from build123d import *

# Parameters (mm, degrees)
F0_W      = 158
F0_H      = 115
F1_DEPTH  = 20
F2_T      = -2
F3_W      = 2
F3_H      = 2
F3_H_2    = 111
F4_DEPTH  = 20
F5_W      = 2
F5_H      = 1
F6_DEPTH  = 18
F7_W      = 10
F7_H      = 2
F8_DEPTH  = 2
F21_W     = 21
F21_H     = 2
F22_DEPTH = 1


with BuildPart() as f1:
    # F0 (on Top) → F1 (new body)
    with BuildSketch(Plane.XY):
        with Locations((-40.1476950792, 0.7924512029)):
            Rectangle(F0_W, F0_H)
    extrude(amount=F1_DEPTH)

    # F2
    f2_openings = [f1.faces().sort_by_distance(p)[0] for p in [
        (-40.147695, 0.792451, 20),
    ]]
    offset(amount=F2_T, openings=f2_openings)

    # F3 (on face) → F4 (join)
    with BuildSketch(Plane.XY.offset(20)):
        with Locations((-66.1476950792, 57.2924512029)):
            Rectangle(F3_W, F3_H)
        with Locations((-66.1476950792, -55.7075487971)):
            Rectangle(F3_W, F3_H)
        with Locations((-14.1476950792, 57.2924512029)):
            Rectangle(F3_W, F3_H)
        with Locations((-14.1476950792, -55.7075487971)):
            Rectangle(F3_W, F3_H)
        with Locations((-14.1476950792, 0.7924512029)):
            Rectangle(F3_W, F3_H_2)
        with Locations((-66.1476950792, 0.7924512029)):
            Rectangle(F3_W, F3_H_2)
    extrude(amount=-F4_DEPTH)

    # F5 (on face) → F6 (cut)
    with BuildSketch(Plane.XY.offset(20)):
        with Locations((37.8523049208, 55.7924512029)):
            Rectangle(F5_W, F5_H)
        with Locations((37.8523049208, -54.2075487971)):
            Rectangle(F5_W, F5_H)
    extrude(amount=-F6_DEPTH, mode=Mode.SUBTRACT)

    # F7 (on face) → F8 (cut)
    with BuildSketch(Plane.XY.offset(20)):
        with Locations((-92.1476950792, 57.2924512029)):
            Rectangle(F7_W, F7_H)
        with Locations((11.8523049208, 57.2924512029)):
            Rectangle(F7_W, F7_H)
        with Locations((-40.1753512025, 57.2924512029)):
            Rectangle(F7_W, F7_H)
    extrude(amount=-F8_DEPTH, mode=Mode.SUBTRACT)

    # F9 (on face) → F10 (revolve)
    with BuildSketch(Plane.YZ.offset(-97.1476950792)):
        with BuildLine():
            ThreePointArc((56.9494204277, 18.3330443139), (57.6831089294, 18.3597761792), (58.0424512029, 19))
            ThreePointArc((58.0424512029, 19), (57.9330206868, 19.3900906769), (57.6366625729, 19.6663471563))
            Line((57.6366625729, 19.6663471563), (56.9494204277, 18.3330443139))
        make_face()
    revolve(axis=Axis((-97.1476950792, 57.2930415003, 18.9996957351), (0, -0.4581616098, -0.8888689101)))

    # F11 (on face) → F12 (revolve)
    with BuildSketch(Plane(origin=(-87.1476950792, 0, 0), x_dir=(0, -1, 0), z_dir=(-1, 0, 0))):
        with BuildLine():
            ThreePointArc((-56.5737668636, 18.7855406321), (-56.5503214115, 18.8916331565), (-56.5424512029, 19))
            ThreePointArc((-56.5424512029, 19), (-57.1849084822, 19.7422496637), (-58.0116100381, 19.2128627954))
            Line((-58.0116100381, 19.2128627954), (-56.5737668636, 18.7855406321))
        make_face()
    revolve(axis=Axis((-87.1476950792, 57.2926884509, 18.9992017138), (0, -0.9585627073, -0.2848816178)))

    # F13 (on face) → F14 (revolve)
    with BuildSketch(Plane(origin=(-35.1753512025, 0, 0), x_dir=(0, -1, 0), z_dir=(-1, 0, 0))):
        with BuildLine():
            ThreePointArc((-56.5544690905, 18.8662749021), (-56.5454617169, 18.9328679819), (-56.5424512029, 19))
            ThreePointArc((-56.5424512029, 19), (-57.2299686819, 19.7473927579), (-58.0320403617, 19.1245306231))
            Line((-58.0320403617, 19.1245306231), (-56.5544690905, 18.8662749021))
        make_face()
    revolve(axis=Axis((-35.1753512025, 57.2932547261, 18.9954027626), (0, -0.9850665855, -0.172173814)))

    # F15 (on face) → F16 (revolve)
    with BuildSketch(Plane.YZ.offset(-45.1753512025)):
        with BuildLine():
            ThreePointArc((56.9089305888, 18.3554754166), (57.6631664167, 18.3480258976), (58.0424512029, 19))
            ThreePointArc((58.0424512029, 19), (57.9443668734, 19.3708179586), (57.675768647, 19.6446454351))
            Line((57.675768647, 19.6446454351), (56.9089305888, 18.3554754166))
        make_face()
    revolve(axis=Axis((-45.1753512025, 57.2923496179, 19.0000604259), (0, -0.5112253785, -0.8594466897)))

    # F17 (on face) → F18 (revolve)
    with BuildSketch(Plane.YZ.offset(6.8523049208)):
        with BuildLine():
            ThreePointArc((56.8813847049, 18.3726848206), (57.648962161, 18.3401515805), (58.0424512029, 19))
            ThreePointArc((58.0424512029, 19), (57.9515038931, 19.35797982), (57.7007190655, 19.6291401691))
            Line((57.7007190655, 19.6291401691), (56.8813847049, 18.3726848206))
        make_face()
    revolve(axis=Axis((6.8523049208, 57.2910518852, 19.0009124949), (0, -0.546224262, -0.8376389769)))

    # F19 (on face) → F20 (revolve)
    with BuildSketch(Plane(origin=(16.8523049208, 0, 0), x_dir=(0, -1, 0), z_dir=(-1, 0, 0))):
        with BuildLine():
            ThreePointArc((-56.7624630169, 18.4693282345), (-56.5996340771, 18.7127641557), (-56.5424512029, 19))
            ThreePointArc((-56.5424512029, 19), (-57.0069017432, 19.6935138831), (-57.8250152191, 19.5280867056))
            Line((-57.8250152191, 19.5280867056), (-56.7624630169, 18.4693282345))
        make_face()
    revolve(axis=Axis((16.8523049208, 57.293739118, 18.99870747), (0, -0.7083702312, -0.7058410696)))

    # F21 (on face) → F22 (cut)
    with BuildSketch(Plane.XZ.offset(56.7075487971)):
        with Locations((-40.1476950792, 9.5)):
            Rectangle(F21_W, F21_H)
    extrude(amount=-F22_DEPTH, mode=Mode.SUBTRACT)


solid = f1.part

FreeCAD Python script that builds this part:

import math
import FreeCAD as App
import Part
import Sketcher

V = App.Vector
Q = App.Units.Quantity


def faces_at(feature, points):
    """Names of the faces that lie closest to the given points."""
    faces = feature.Shape.Faces
    near = lambda p: min(range(len(faces)), key=lambda i: faces[i].distToShape(Part.Vertex(*p))[0])
    return sorted({f"Face{near(p) + 1}" for p in points})


def add_polygon(sketch, points):
    """Adds a closed chain of lines whose ends are joined by coincident constraints."""
    first, n = sketch.GeometryCount, len(points)
    for a, b in zip(points, points[1:] + points[:1]):
        sketch.addGeometry(Part.LineSegment(App.Vector(*a, 0), App.Vector(*b, 0)), False)
    for i in range(n):
        sketch.addConstraint(Sketcher.Constraint("Coincident", first + i, 2, first + (i + 1) % n, 1))

doc = App.newDocument("Part")
body = doc.addObject("PartDesign::Body", "Body")

# Sketch on XY plane
sketch1 = body.newObject("Sketcher::SketchObject", "Sketch")
sketch1.AttachmentSupport = (doc.getObject("XY_Plane"), [""])
sketch1.MapMode = "FlatFace"
add_polygon(sketch1, [(-119, 58), (-119, -57), (39, -57), (39, 58)])  # lines 0-3
sketch1.addConstraint([
    Sketcher.Constraint("Vertical", 0),
    Sketcher.Constraint("Horizontal", 1),
    Sketcher.Constraint("Vertical", 2),
    Sketcher.Constraint("Horizontal", 3),
    Sketcher.Constraint("DistanceX", 1, 1, 1, 2, Q("158 mm")),
    Sketcher.Constraint("DistanceY", 0, 2, 0, 1, Q("115 mm")),
    Sketcher.Constraint("DistanceY", 0, 2, -1, 1, Q("56.707549 mm")),
    Sketcher.Constraint("DistanceX", 0, 2, -1, 1, Q("119.147695 mm")),
])
pad1 = body.newObject("PartDesign::Pad", "Pad")
pad1.Profile = sketch1
pad1.Length = 20
doc.recompute()

thickness = body.newObject("PartDesign::Thickness", "Thickness")
thickness.Base = (pad1, faces_at(pad1, [(-40.148, 0.792, 20)]))
thickness.Value = 2
thickness.Reversed = True
thickness.Join = "Arc"

# Sketch on XY plane
sketch2 = body.newObject("Sketcher::SketchObject", "Sketch001")
sketch2.AttachmentSupport = (doc.getObject("XY_Plane"), [""])
sketch2.MapMode = "FlatFace"
sketch2.AttachmentOffset = App.Placement(V(0, 0, 20), App.Rotation())
add_polygon(sketch2, [(-67.1, 58.3), (-67.1, -56.7), (-65.1, -56.7), (-65.1, 58.3)])  # lines 0-3
add_polygon(sketch2, [(-15.1, 58.3), (-15.1, -56.7), (-13.1, -56.7), (-13.1, 58.3)])  # lines 4-7
sketch2.addConstraint([
    Sketcher.Constraint("Vertical", 0),
    Sketcher.Constraint("Horizontal", 1),
    Sketcher.Constraint("Vertical", 2),
    Sketcher.Constraint("Horizontal", 3),
    Sketcher.Constraint("Vertical", 4),
    Sketcher.Constraint("Horizontal", 5),
    Sketcher.Constraint("Vertical", 6),
    Sketcher.Constraint("Horizontal", 7),
    Sketcher.Constraint("Horizontal", 1, 2, 4, 2),
    Sketcher.Constraint("Horizontal", 3, 2, 6, 2),
    Sketcher.Constraint("Equal", 3, 5),
    Sketcher.Constraint("DistanceX", 1, 1, 1, 2, Q("2 mm")),
    Sketcher.Constraint("DistanceY", 0, 2, 0, 1, Q("115 mm")),
    Sketcher.Constraint("DistanceX", 1, 2, 4, 2, Q("50 mm")),
    Sketcher.Constraint("DistanceY", 0, 2, -1, 1, Q("56.707549 mm")),
    Sketcher.Constraint("DistanceX", 0, 2, -1, 1, Q("67.147695 mm")),
])
pad2 = body.newObject("PartDesign::Pad", "Pad001")
pad2.Profile = sketch2
pad2.Length = 20
pad2.Reversed = True

# Sketch on XY plane
sketch3 = body.newObject("Sketcher::SketchObject", "Sketch002")
sketch3.AttachmentSupport = (doc.getObject("XY_Plane"), [""])
sketch3.MapMode = "FlatFace"
sketch3.AttachmentOffset = App.Placement(V(0, 0, 20), App.Rotation())
add_polygon(sketch3, [(36.9, 56.3), (36.9, 55.3), (38.9, 55.3), (38.9, 56.3)])  # lines 0-3
add_polygon(sketch3, [(36.9, -53.7), (36.9, -54.7), (38.9, -54.7), (38.9, -53.7)])  # lines 4-7
sketch3.addConstraint([
    Sketcher.Constraint("Vertical", 0),
    Sketcher.Constraint("Horizontal", 1),
    Sketcher.Constraint("Vertical", 2),
    Sketcher.Constraint("Horizontal", 3),
    Sketcher.Constraint("Vertical", 4),
    Sketcher.Constraint("Horizontal", 5),
    Sketcher.Constraint("Vertical", 6),
    Sketcher.Constraint("Horizontal", 7),
    Sketcher.Constraint("Vertical", 3, 2, 4, 2),
    Sketcher.Constraint("Vertical", 2, 2, 5, 2),
    Sketcher.Constraint("Equal", 2, 4),
    Sketcher.Constraint("DistanceX", 1, 1, 1, 2, Q("2 mm")),
    Sketcher.Constraint("DistanceY", 0, 2, 0, 1, Q("1 mm")),
    Sketcher.Constraint("DistanceY", 4, 2, 0, 2, Q("110 mm")),
    Sketcher.Constraint("DistanceY", -1, 1, 0, 2, Q("55.292451 mm")),
    Sketcher.Constraint("DistanceX", -1, 1, 0, 2, Q("36.852305 mm")),
])
pocket1 = body.newObject("PartDesign::Pocket", "Pocket")
pocket1.Profile = sketch3
pocket1.Length = 18

# Sketch on XY plane
sketch4 = body.newObject("Sketcher::SketchObject", "Sketch003")
sketch4.AttachmentSupport = (doc.getObject("XY_Plane"), [""])
sketch4.MapMode = "FlatFace"
sketch4.AttachmentOffset = App.Placement(V(0, 0, 20), App.Rotation())
add_polygon(sketch4, [(-97.1, 58.3), (-97.1, 56.3), (-87.1, 56.3), (-87.1, 58.3)])  # lines 0-3
add_polygon(sketch4, [(6.9, 58.3), (6.9, 56.3), (16.9, 56.3), (16.9, 58.3)])  # lines 4-7
add_polygon(sketch4, [(-45.2, 58.3), (-45.2, 56.3), (-35.2, 56.3), (-35.2, 58.3)])  # lines 8-11
sketch4.addConstraint([
    Sketcher.Constraint("Vertical", 0),
    Sketcher.Constraint("Horizontal", 1),
    Sketcher.Constraint("Vertical", 2),
    Sketcher.Constraint("Horizontal", 3),
    Sketcher.Constraint("Vertical", 4),
    Sketcher.Constraint("Horizontal", 5),
    Sketcher.Constraint("Vertical", 6),
    Sketcher.Constraint("Horizontal", 7),
    Sketcher.Constraint("Vertical", 8),
    Sketcher.Constraint("Horizontal", 9),
    Sketcher.Constraint("Vertical", 10),
    Sketcher.Constraint("Horizontal", 11),
    Sketcher.Constraint("Horizontal", 1, 2, 4, 2),
    Sketcher.Constraint("Horizontal", 3, 2, 6, 2),
    Sketcher.Constraint("Horizontal", 5, 2, 8, 2),
    Sketcher.Constraint("Horizontal", 7, 2, 10, 2),
    Sketcher.Constraint("Equal", 3, 5),
    Sketcher.Constraint("Equal", 7, 9),
    Sketcher.Constraint("DistanceX", 1, 1, 1, 2, Q("10 mm")),
    Sketcher.Constraint("DistanceY", 0, 2, 0, 1, Q("2 mm")),
    Sketcher.Constraint("DistanceX", 1, 2, 4, 2, Q("94 mm")),
    Sketcher.Constraint("DistanceY", -1, 1, 0, 2, Q("56.292451 mm")),
    Sketcher.Constraint("DistanceX", 8, 2, -1, 1, Q("45.175351 mm")),
    Sketcher.Constraint("DistanceX", 0, 2, -1, 1, Q("97.147695 mm")),
])
pocket2 = body.newObject("PartDesign::Pocket", "Pocket001")
pocket2.Profile = sketch4
pocket2.Length = 2

# Sketch on YZ plane
sketch5 = body.newObject("Sketcher::SketchObject", "Sketch004")
sketch5.AttachmentSupport = (doc.getObject("YZ_Plane"), [""])
sketch5.MapMode = "FlatFace"
sketch5.AttachmentOffset = App.Placement(V(0, 0, -97.147695), App.Rotation())
sketch5.addGeometry([
    Part.ArcOfCircle(Part.Circle(V(57.3, 19, 0), V(0, 0, 1), 0.8), math.radians(-117), math.radians(0)),
    Part.ArcOfCircle(Part.Circle(V(57.3, 19, 0), V(0, 0, 1), 0.8), math.radians(0), math.radians(63)),
    Part.LineSegment(V(57.6, 19.7, 0), V(56.9, 18.3, 0)),
], False)
sketch5.addGeometry(Part.LineSegment(V(57.6, 19.7, 0), V(56.9, 18.3, 0)), True)  # axis
sketch5.addConstraint([
    Sketcher.Constraint("Tangent", 0, 2, 1, 1),
    Sketcher.Constraint("Coincident", 1, 2, 2, 1),
    Sketcher.Constraint("Coincident", 2, 2, 0, 1),
    Sketcher.Constraint("Coincident", 3, 1, 1, 2),
    Sketcher.Constraint("Coincident", 3, 2, 2, 2),
    Sketcher.Constraint("Equal", 0, 1),
    Sketcher.Constraint("Horizontal", 1, 3, 0, 2),
    Sketcher.Constraint("Radius", 0, Q("0.75 mm")),
    Sketcher.Constraint("DistanceY", -1, 1, 0, 3, Q("19 mm")),
    Sketcher.Constraint("DistanceX", -1, 1, 0, 3, Q("57.292451 mm")),
    Sketcher.Constraint("DistanceX", -1, 1, 2, 2, Q("56.94942 mm")),
    Sketcher.Constraint("DistanceX", 0, 3, 1, 2, Q("0.344211 mm")),
])
revolution = body.newObject("PartDesign::Revolution", "Revolution")
revolution.Profile = sketch5
revolution.ReferenceAxis = (sketch5, ["Axis0"])
revolution.Angle = 360

# Sketch on YZ plane
sketch6 = body.newObject("Sketcher::SketchObject", "Sketch005")
sketch6.AttachmentSupport = (doc.getObject("YZ_Plane"), [""])
sketch6.MapMode = "FlatFace"
sketch6.AttachmentOffset = App.Placement(V(0, 0, -87.147695), App.Rotation())
sketch6.addGeometry([
    Part.ArcOfCircle(Part.Circle(V(57.29, 19, 0), V(0, 0, 1), 0.75), math.radians(180), math.radians(196.62)),
    Part.ArcOfCircle(Part.Circle(V(57.29, 19, 0), V(0, 0, 1), 0.75), math.radians(16), math.radians(180)),
    Part.LineSegment(V(58.01, 19.21, 0), V(56.57, 18.79, 0)),
], False)
sketch6.addGeometry(Part.LineSegment(V(58.01, 19.21, 0), V(56.57, 18.79, 0)), True)  # axis
sketch6.addConstraint([
    Sketcher.Constraint("Tangent", 0, 1, 1, 2),
    Sketcher.Constraint("Coincident", 1, 1, 2, 1),
    Sketcher.Constraint("Coincident", 2, 2, 0, 2),
    Sketcher.Constraint("Coincident", 3, 1, 1, 1),
    Sketcher.Constraint("Coincident", 3, 2, 2, 2),
    Sketcher.Constraint("Equal", 0, 1),
    Sketcher.Constraint("Horizontal", 1, 3, 0, 1),
    Sketcher.Constraint("Radius", 0, Q("0.75 mm")),
    Sketcher.Constraint("DistanceY", -1, 1, 0, 3, Q("19 mm")),
    Sketcher.Constraint("DistanceX", -1, 1, 0, 3, Q("57.292451 mm")),
    Sketcher.Constraint("DistanceX", -1, 1, 1, 1, Q("58.01161 mm")),
    Sketcher.Constraint("DistanceY", -1, 1, 2, 2, Q("18.785541 mm")),
])
revolution2 = body.newObject("PartDesign::Revolution", "Revolution001")
revolution2.Profile = sketch6
revolution2.ReferenceAxis = (sketch6, ["Axis0"])
revolution2.Angle = 360

# Sketch on YZ plane
sketch7 = body.newObject("Sketcher::SketchObject", "Sketch006")
sketch7.AttachmentSupport = (doc.getObject("YZ_Plane"), [""])
sketch7.MapMode = "FlatFace"
sketch7.AttachmentOffset = App.Placement(V(0, 0, -35.175351), App.Rotation())
sketch7.addGeometry([
    Part.ArcOfCircle(Part.Circle(V(57.29, 19, 0), V(0, 0, 1), 0.75), math.radians(180), math.radians(190.27)),
    Part.ArcOfCircle(Part.Circle(V(57.29, 19, 0), V(0, 0, 1), 0.75), math.radians(10), math.radians(180)),
    Part.LineSegment(V(58.03, 19.12, 0), V(56.55, 18.87, 0)),
], False)
sketch7.addGeometry(Part.LineSegment(V(58.03, 19.12, 0), V(56.55, 18.87, 0)), True)  # axis
sketch7.addConstraint([
    Sketcher.Constraint("Tangent", 0, 1, 1, 2),
    Sketcher.Constraint("Coincident", 1, 1, 2, 1),
    Sketcher.Constraint("Coincident", 2, 2, 0, 2),
    Sketcher.Constraint("Coincident", 3, 1, 1, 1),
    Sketcher.Constraint("Coincident", 3, 2, 2, 2),
    Sketcher.Constraint("Equal", 0, 1),
    Sketcher.Constraint("Horizontal", 1, 3, 0, 1),
    Sketcher.Constraint("Radius", 0, Q("0.75 mm")),
    Sketcher.Constraint("DistanceY", -1, 1, 0, 3, Q("19 mm")),
    Sketcher.Constraint("Distance", 2, Q("1.499971 mm")),
    Sketcher.Constraint("DistanceX", -1, 1, 0, 3, Q("57.292451 mm")),
    Sketcher.Constraint("DistanceX", -1, 1, 1, 1, Q("58.03204 mm")),
])
revolution3 = body.newObject("PartDesign::Revolution", "Revolution002")
revolution3.Profile = sketch7
revolution3.ReferenceAxis = (sketch7, ["Axis0"])
revolution3.Angle = 360

# Sketch on YZ plane
sketch8 = body.newObject("Sketcher::SketchObject", "Sketch007")
sketch8.AttachmentSupport = (doc.getObject("YZ_Plane"), [""])
sketch8.MapMode = "FlatFace"
sketch8.AttachmentOffset = App.Placement(V(0, 0, -45.175351), App.Rotation())
sketch8.addGeometry([
    Part.ArcOfCircle(Part.Circle(V(57.3, 19, 0), V(0, 0, 1), 0.8), math.radians(-121), math.radians(0)),
    Part.ArcOfCircle(Part.Circle(V(57.3, 19, 0), V(0, 0, 1), 0.8), math.radians(0), math.radians(59)),
    Part.LineSegment(V(57.7, 19.6, 0), V(56.9, 18.4, 0)),
], False)
sketch8.addGeometry(Part.LineSegment(V(57.7, 19.6, 0), V(56.9, 18.4, 0)), True)  # axis
sketch8.addConstraint([
    Sketcher.Constraint("Tangent", 0, 2, 1, 1),
    Sketcher.Constraint("Coincident", 1, 2, 2, 1),
    Sketcher.Constraint("Coincident", 2, 2, 0, 1),
    Sketcher.Constraint("Coincident", 3, 1, 1, 2),
    Sketcher.Constraint("Coincident", 3, 2, 2, 2),
    Sketcher.Constraint("Equal", 0, 1),
    Sketcher.Constraint("Horizontal", 1, 3, 0, 2),
    Sketcher.Constraint("Radius", 0, Q("0.75 mm")),
    Sketcher.Constraint("DistanceY", -1, 1, 0, 3, Q("19 mm")),
    Sketcher.Constraint("DistanceX", -1, 1, 0, 3, Q("57.292451 mm")),
    Sketcher.Constraint("DistanceX", -1, 1, 1, 2, Q("57.675769 mm")),
    Sketcher.Constraint("DistanceX", -1, 1, 2, 2, Q("56.908931 mm")),
])
revolution4 = body.newObject("PartDesign::Revolution", "Revolution003")
revolution4.Profile = sketch8
revolution4.ReferenceAxis = (sketch8, ["Axis0"])
revolution4.Angle = 360

# Sketch on YZ plane
sketch9 = body.newObject("Sketcher::SketchObject", "Sketch008")
sketch9.AttachmentSupport = (doc.getObject("YZ_Plane"), [""])
sketch9.MapMode = "FlatFace"
sketch9.AttachmentOffset = App.Placement(V(0, 0, 6.852305), App.Rotation())
sketch9.addGeometry([
    Part.ArcOfCircle(Part.Circle(V(57.3, 19, 0), V(0, 0, 1), 0.8), math.radians(-123), math.radians(0)),
    Part.ArcOfCircle(Part.Circle(V(57.3, 19, 0), V(0, 0, 1), 0.8), math.radians(0), math.radians(57)),
    Part.LineSegment(V(57.7, 19.6, 0), V(56.9, 18.4, 0)),
], False)
sketch9.addGeometry(Part.LineSegment(V(57.7, 19.6, 0), V(56.9, 18.4, 0)), True)  # axis
sketch9.addConstraint([
    Sketcher.Constraint("Tangent", 0, 2, 1, 1),
    Sketcher.Constraint("Coincident", 1, 2, 2, 1),
    Sketcher.Constraint("Coincident", 2, 2, 0, 1),
    Sketcher.Constraint("Coincident", 3, 1, 1, 2),
    Sketcher.Constraint("Coincident", 3, 2, 2, 2),
    Sketcher.Constraint("Equal", 0, 1),
    Sketcher.Constraint("Horizontal", 1, 3, 0, 2),
    Sketcher.Constraint("Radius", 0, Q("0.75 mm")),
    Sketcher.Constraint("DistanceY", -1, 1, 0, 3, Q("19 mm")),
    Sketcher.Constraint("DistanceX", -1, 1, 0, 3, Q("57.292451 mm")),
    Sketcher.Constraint("DistanceX", -1, 1, 1, 2, Q("57.700719 mm")),
    Sketcher.Constraint("DistanceX", -1, 1, 2, 2, Q("56.881385 mm")),
])
revolution5 = body.newObject("PartDesign::Revolution", "Revolution004")
revolution5.Profile = sketch9
revolution5.ReferenceAxis = (sketch9, ["Axis0"])
revolution5.Angle = 360

# Sketch on YZ plane
sketch10 = body.newObject("Sketcher::SketchObject", "Sketch009")
sketch10.AttachmentSupport = (doc.getObject("YZ_Plane"), [""])
sketch10.MapMode = "FlatFace"
sketch10.AttachmentOffset = App.Placement(V(0, 0, 16.852305), App.Rotation())
sketch10.addGeometry([
    Part.ArcOfCircle(Part.Circle(V(57.3, 19, 0), V(0, 0, 1), 0.8), math.radians(180), math.radians(225)),
    Part.ArcOfCircle(Part.Circle(V(57.3, 19, 0), V(0, 0, 1), 0.8), math.radians(45), math.radians(180)),
    Part.LineSegment(V(57.8, 19.5, 0), V(56.8, 18.5, 0)),
], False)
sketch10.addGeometry(Part.LineSegment(V(57.8, 19.5, 0), V(56.8, 18.5, 0)), True)  # axis
sketch10.addConstraint([
    Sketcher.Constraint("Tangent", 0, 1, 1, 2),
    Sketcher.Constraint("Coincident", 1, 1, 2, 1),
    Sketcher.Constraint("Coincident", 2, 2, 0, 2),
    Sketcher.Constraint("Coincident", 3, 1, 1, 1),
    Sketcher.Constraint("Coincident", 3, 2, 2, 2),
    Sketcher.Constraint("Equal", 0, 1),
    Sketcher.Constraint("Horizontal", 1, 3, 0, 1),
    Sketcher.Constraint("Radius", 0, Q("0.75 mm")),
    Sketcher.Constraint("DistanceY", -1, 1, 0, 3, Q("19 mm")),
    Sketcher.Constraint("DistanceX", -1, 1, 0, 3, Q("57.292451 mm")),
    Sketcher.Constraint("DistanceY", -1, 1, 2, 2, Q("18.469328 mm")),
    Sketcher.Constraint("DistanceY", 2, 2, 1, 1, Q("1.058758 mm")),
])
revolution6 = body.newObject("PartDesign::Revolution", "Revolution005")
revolution6.Profile = sketch10
revolution6.ReferenceAxis = (sketch10, ["Axis0"])
revolution6.Angle = 360

# Sketch on XZ plane
sketch11 = body.newObject("Sketcher::SketchObject", "Sketch010")
sketch11.AttachmentSupport = (doc.getObject("XZ_Plane"), [""])
sketch11.MapMode = "FlatFace"
sketch11.AttachmentOffset = App.Placement(V(0, 0, 56.707549), App.Rotation())
add_polygon(sketch11, [(-50.6, 10.5), (-50.6, 8.5), (-29.6, 8.5), (-29.6, 10.5)])  # lines 0-3
sketch11.addConstraint([
    Sketcher.Constraint("Vertical", 0),
    Sketcher.Constraint("Horizontal", 1),
    Sketcher.Constraint("Vertical", 2),
    Sketcher.Constraint("Horizontal", 3),
    Sketcher.Constraint("DistanceX", 1, 1, 1, 2, Q("21 mm")),
    Sketcher.Constraint("DistanceY", 0, 2, 0, 1, Q("2 mm")),
    Sketcher.Constraint("DistanceY", -1, 1, 0, 2, Q("8.5 mm")),
    Sketcher.Constraint("DistanceX", 0, 2, -1, 1, Q("50.647695 mm")),
])
pocket3 = body.newObject("PartDesign::Pocket", "Pocket002")
pocket3.Profile = sketch11
pocket3.Length = 1

doc.recompute()
